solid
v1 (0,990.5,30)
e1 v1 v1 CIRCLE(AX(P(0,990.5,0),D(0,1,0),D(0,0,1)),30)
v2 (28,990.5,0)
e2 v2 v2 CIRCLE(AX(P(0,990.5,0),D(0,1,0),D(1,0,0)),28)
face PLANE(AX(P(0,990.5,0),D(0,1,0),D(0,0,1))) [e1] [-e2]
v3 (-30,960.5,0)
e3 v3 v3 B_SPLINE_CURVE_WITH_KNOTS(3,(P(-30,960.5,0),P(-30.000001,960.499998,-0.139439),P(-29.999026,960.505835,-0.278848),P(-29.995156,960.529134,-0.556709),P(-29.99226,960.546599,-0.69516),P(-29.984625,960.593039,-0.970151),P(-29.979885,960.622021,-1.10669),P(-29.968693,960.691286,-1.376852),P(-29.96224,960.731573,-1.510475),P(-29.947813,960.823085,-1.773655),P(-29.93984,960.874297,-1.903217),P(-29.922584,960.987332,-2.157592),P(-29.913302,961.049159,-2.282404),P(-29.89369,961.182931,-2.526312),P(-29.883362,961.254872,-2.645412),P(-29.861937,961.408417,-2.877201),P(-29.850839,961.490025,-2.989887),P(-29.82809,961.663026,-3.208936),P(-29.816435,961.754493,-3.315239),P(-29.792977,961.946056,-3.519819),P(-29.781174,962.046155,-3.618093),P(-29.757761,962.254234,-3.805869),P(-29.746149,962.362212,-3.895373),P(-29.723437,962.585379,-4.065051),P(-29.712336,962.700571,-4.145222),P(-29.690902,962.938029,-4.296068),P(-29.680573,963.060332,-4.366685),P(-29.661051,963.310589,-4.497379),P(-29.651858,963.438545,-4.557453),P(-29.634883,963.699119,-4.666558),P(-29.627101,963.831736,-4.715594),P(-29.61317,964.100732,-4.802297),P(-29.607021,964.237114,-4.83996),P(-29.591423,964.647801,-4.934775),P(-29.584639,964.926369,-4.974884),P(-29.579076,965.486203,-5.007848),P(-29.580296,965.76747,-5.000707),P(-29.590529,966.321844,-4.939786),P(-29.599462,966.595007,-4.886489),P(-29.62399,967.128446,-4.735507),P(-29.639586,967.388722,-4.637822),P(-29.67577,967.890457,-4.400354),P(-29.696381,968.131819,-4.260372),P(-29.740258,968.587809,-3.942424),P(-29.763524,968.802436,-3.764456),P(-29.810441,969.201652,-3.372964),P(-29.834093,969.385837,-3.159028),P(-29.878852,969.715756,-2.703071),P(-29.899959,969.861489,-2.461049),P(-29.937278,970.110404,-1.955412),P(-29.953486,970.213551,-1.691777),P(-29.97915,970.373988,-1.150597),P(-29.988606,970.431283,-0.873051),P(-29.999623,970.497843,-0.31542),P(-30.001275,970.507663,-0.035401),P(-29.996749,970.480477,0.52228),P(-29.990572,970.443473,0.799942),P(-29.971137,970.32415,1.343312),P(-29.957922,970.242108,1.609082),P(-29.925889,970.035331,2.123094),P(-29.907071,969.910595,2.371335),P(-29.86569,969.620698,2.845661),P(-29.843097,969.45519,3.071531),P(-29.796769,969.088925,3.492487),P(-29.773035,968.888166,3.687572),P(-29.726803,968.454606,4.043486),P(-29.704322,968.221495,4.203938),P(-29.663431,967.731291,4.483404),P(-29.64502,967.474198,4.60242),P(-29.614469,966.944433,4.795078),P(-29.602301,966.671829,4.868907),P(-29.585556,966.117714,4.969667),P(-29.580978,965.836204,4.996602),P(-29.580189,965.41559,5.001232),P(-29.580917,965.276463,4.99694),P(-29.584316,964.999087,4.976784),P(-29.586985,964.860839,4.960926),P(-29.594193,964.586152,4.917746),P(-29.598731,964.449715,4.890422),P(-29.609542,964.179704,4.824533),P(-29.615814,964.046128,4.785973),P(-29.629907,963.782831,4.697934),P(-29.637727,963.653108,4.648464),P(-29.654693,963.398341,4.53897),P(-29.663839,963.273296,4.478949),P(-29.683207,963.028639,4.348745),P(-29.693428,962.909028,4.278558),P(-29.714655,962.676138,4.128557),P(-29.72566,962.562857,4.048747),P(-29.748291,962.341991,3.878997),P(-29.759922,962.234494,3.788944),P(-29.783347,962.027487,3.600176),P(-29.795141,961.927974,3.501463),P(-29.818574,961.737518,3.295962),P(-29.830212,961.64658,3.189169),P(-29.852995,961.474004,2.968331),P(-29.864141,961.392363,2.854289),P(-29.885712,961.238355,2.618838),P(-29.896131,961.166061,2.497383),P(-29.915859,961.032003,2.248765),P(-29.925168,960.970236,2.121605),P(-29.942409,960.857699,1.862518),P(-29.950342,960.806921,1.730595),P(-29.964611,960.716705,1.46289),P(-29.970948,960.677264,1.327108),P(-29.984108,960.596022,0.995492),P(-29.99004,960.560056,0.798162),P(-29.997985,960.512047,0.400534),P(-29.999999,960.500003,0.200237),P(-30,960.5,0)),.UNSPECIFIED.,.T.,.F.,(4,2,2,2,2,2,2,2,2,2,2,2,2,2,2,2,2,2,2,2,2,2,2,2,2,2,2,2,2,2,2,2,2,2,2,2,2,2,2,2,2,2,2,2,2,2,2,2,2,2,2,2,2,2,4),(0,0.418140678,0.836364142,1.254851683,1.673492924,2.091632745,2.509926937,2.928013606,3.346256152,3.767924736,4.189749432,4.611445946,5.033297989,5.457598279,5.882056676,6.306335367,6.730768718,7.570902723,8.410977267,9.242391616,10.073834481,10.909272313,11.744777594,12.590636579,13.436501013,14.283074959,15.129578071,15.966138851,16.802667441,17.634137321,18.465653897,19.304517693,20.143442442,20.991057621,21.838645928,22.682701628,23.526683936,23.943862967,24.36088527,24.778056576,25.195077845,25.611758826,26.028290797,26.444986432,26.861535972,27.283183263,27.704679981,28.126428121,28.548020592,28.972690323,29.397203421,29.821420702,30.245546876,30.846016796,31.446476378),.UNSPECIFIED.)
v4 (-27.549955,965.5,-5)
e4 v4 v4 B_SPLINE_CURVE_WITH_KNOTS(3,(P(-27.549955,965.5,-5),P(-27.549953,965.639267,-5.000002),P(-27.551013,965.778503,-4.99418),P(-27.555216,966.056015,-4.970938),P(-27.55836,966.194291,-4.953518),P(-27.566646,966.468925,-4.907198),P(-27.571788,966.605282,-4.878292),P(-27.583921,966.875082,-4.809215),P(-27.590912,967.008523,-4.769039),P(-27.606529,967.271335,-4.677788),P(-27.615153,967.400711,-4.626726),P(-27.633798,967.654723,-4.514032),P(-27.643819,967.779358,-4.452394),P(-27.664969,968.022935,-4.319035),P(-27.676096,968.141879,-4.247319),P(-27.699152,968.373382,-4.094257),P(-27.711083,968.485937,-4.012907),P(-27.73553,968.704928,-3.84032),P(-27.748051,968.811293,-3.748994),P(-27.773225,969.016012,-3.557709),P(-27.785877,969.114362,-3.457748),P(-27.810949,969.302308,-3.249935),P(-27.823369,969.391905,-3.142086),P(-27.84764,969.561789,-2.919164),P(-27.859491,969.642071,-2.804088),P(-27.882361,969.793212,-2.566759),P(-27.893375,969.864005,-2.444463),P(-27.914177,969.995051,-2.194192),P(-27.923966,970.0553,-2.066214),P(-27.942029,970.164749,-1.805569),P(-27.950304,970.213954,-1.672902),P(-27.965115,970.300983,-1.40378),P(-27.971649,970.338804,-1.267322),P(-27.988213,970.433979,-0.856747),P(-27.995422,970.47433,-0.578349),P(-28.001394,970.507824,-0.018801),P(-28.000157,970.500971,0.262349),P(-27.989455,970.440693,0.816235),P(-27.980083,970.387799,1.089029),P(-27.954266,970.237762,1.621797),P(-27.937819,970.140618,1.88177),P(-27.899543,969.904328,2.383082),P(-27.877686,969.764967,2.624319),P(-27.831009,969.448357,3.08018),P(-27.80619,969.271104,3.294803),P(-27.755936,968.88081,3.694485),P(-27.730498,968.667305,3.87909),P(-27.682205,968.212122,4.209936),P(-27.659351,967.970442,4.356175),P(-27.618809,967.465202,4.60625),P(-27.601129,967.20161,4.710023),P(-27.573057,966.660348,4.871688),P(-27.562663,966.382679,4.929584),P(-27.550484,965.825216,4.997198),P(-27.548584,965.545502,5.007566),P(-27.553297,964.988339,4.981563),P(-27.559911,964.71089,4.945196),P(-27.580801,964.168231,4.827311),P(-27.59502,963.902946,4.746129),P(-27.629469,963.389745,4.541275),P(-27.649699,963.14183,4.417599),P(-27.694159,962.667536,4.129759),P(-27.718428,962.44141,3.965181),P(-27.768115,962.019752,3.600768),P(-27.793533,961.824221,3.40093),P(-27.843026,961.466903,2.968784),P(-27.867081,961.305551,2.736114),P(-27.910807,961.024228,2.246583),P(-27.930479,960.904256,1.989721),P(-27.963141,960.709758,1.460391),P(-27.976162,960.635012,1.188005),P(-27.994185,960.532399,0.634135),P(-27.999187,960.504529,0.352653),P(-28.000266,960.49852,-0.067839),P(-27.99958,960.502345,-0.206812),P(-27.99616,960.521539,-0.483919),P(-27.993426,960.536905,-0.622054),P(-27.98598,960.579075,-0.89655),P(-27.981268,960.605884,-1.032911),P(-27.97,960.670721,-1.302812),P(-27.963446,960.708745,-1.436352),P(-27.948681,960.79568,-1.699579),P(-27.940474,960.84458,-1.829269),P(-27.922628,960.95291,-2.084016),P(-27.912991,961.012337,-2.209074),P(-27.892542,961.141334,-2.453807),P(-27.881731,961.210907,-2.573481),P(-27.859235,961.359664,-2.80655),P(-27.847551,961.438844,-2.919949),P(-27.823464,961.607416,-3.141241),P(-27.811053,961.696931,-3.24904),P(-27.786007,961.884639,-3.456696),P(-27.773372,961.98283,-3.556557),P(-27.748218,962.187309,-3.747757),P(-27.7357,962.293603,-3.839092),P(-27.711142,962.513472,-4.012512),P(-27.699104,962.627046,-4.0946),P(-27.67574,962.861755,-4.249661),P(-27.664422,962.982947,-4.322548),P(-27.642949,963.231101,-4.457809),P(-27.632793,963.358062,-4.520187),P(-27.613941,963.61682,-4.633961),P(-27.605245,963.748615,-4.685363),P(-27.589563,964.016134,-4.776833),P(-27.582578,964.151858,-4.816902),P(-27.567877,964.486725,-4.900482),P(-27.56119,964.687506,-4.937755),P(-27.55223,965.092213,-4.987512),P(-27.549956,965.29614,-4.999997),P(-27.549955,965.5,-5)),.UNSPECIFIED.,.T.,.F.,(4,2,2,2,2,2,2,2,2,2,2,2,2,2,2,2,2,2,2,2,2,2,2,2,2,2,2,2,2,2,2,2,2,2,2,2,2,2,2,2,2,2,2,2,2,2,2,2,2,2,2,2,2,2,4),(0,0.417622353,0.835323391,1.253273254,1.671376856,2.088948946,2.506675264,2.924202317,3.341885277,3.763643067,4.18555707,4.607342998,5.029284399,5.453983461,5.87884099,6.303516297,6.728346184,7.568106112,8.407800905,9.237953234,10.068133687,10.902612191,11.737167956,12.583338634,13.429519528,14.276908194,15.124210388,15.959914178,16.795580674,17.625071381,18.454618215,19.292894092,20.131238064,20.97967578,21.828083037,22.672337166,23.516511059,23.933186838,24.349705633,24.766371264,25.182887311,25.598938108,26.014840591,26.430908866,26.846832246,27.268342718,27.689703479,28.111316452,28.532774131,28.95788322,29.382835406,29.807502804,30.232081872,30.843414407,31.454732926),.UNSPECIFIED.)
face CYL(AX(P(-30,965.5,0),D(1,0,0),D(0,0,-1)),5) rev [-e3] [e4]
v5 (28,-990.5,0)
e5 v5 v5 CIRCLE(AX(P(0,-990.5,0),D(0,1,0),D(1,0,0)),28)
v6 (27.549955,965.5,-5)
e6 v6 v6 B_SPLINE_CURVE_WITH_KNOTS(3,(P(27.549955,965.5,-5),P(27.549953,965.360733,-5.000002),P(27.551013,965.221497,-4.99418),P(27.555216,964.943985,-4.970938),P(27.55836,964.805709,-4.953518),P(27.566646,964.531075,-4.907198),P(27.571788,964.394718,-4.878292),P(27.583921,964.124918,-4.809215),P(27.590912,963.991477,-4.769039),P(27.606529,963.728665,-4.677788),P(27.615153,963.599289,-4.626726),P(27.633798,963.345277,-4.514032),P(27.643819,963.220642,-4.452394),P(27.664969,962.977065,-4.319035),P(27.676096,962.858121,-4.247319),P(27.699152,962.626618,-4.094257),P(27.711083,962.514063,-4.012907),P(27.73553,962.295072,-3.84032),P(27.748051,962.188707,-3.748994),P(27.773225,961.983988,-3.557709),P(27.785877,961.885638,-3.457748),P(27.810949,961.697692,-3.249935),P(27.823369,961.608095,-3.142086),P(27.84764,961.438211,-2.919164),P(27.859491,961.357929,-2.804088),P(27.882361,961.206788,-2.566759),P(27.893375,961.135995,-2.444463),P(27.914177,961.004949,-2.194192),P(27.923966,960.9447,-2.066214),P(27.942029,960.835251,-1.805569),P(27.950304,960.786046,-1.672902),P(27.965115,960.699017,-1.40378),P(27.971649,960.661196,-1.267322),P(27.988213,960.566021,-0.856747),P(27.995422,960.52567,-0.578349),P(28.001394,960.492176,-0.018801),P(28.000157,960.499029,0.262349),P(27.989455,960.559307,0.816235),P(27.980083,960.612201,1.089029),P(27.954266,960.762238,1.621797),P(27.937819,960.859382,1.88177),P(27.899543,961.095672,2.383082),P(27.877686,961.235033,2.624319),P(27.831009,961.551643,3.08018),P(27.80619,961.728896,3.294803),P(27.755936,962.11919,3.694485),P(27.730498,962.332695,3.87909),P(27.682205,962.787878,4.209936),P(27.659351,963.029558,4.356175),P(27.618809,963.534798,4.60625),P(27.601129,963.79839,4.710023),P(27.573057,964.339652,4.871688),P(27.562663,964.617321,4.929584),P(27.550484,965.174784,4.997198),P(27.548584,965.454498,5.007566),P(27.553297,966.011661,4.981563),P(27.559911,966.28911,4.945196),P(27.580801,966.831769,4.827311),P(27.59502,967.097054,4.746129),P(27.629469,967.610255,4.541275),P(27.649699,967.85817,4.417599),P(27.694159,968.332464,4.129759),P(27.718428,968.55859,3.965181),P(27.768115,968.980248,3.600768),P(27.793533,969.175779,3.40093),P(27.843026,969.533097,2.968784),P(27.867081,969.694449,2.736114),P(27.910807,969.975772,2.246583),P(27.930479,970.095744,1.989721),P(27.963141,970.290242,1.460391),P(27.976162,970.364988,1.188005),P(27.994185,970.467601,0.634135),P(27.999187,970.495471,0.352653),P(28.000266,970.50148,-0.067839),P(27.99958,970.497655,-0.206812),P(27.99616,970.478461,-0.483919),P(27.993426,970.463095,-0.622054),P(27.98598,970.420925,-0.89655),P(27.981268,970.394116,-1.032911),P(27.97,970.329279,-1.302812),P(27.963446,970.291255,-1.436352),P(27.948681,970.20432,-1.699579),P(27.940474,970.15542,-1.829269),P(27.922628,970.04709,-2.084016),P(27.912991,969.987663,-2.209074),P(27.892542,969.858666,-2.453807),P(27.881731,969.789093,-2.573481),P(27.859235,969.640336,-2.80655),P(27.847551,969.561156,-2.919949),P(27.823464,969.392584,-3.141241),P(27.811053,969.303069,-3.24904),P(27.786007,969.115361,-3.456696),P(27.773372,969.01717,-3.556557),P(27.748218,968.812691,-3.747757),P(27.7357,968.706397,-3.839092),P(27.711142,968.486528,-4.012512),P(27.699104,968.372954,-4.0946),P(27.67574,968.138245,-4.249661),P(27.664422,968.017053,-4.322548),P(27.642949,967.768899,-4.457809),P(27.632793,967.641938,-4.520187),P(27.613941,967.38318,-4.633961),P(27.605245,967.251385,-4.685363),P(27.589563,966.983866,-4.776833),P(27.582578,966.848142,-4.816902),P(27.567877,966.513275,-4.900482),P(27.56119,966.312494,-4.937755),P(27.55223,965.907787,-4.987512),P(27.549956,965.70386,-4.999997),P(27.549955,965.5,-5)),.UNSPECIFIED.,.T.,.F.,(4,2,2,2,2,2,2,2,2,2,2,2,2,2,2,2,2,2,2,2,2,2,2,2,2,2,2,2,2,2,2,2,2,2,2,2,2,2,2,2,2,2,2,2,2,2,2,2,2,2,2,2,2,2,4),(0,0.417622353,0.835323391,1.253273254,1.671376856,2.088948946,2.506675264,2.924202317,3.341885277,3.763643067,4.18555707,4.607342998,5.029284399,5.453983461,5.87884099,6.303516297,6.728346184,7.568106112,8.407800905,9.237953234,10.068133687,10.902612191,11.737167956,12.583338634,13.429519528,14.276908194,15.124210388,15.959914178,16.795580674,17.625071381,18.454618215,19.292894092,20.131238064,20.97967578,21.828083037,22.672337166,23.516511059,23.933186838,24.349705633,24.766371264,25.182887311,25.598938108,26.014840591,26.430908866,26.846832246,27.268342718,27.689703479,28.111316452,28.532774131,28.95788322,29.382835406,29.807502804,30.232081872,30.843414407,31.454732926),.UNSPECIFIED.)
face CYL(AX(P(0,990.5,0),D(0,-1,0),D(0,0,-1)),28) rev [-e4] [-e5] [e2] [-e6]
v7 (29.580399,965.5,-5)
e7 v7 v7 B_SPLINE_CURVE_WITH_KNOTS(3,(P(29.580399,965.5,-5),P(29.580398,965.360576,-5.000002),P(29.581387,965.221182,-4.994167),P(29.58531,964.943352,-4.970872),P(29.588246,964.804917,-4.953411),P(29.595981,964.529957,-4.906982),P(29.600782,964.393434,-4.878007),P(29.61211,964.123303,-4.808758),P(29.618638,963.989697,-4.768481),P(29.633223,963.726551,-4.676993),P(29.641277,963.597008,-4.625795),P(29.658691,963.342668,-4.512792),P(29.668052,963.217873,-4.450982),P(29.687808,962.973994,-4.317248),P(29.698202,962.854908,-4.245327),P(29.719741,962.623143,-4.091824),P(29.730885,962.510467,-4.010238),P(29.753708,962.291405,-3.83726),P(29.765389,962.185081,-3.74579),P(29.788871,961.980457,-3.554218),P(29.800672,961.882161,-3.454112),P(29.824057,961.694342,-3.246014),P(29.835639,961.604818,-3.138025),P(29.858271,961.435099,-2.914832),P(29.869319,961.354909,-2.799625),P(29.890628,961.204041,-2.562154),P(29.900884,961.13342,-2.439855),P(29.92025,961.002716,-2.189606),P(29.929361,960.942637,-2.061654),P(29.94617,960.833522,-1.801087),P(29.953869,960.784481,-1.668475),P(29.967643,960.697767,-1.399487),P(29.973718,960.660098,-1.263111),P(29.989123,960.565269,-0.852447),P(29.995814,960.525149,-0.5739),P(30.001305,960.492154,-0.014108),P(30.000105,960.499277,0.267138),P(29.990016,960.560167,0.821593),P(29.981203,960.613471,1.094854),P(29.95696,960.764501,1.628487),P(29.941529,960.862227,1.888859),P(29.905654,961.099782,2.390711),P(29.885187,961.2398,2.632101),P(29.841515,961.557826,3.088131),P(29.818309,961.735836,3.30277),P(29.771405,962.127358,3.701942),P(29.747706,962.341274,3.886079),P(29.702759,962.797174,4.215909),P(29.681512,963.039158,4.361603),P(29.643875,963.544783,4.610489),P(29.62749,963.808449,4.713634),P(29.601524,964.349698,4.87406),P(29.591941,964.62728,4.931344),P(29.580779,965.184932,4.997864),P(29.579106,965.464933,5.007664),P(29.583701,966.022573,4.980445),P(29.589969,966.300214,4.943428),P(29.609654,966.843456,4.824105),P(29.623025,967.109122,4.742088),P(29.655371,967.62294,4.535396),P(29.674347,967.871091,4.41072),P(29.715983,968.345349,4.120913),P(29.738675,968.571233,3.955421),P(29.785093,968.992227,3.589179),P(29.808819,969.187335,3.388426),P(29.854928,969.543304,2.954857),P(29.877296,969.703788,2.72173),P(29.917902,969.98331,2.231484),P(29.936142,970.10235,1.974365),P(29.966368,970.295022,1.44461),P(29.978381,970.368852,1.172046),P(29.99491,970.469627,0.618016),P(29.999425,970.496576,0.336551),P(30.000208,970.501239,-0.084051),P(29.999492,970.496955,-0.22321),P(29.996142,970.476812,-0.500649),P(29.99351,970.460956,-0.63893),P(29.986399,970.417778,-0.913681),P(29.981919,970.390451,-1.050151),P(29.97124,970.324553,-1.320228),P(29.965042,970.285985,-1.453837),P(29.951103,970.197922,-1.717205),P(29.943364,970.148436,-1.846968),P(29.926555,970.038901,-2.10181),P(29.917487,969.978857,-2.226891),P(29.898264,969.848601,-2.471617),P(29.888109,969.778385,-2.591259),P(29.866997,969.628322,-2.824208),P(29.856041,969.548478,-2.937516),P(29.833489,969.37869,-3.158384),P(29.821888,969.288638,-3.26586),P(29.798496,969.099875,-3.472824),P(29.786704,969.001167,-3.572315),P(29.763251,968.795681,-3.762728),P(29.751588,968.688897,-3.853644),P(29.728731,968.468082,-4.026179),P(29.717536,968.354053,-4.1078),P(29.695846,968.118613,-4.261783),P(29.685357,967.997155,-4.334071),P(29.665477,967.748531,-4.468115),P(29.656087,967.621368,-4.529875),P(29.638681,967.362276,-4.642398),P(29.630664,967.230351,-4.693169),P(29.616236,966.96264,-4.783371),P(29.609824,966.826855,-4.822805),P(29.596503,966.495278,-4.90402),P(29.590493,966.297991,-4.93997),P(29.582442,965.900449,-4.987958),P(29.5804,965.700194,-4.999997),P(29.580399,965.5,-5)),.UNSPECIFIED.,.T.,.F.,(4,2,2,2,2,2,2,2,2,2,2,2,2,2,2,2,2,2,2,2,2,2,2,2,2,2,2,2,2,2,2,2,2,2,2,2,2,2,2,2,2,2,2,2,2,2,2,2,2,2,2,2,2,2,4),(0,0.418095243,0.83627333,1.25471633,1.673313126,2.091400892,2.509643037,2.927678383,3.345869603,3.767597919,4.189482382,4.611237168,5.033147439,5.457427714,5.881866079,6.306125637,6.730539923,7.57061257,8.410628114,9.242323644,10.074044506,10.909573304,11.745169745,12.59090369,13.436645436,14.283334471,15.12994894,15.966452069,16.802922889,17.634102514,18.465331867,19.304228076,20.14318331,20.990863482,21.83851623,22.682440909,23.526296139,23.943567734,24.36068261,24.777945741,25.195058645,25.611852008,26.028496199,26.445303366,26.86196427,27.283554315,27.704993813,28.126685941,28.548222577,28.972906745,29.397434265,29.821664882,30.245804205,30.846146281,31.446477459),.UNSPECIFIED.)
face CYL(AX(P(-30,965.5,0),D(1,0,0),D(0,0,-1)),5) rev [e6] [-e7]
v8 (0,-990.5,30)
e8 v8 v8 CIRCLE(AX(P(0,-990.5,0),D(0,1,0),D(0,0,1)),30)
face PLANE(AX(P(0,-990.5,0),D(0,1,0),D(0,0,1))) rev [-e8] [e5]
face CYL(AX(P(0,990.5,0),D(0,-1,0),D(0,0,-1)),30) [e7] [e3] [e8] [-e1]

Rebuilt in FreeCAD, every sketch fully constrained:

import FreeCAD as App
import Part
import Sketcher
from FreeCAD import Vector

doc = App.newDocument("Part")
params = doc.addObject("Spreadsheet::Sheet", "Params")
for row, (alias, value) in enumerate([
    ("sketch1_diameter", "60 mm"),
    ("sketch1_diameter2", "56 mm"),
    ("pad1_length", "1981 mm"),
    ("sketch2_diameter", "10 mm"),
], start=1):
    params.set(f"A{row}", alias)
    params.set(f"B{row}", "=" + value)
    params.setAlias(f"B{row}", alias)

body = doc.addObject("PartDesign::Body", "Body")

sketch1 = body.newObject("Sketcher::SketchObject", "Sketch")
sketch1.AttachmentSupport = (doc.getObject("XZ_Plane"), [""])
sketch1.MapMode = "FlatFace"
sketch1.addGeometry([
    Part.Circle(Vector(0, 0, 0), Vector(0, 0, 1), 30),
    Part.Circle(Vector(0, 0, 0), Vector(0, 0, 1), 28),
], False)
sketch1.addConstraint([
    Sketcher.Constraint("Coincident", 0, 3, -1, 1),
    Sketcher.Constraint("Coincident", 1, 3, -1, 1),
    Sketcher.Constraint("Diameter", 0, 60.0),
    Sketcher.Constraint("Diameter", 1, 56.0),
])
sketch1.setExpression("Constraints[2]", "Params.sketch1_diameter")
sketch1.setExpression("Constraints[3]", "Params.sketch1_diameter2")
pad1 = body.newObject("PartDesign::Pad", "Pad")
pad1.Profile = sketch1
pad1.setExpression("Length", "Params.pad1_length")
pad1.Midplane = True

sketch2 = body.newObject("Sketcher::SketchObject", "Sketch001")
sketch2.AttachmentSupport = (doc.getObject("YZ_Plane"), [""])
sketch2.MapMode = "FlatFace"
sketch2.addGeometry(Part.Circle(Vector(966, 0, 0), Vector(0, 0, 1), 5), False)
sketch2.addConstraint([
    Sketcher.Constraint("PointOnObject", 0, 3, -1),
    Sketcher.Constraint("Diameter", 0, 10.0),
    Sketcher.Constraint("DistanceX", -1, 1, 0, 3, 965.5),
])
sketch2.setExpression("Constraints[1]", "Params.sketch2_diameter")
pocket1 = body.newObject("PartDesign::Pocket", "Pocket")
pocket1.Profile = sketch2
pocket1.Type = "ThroughAll"
pocket1.Midplane = True

doc.recompute()
